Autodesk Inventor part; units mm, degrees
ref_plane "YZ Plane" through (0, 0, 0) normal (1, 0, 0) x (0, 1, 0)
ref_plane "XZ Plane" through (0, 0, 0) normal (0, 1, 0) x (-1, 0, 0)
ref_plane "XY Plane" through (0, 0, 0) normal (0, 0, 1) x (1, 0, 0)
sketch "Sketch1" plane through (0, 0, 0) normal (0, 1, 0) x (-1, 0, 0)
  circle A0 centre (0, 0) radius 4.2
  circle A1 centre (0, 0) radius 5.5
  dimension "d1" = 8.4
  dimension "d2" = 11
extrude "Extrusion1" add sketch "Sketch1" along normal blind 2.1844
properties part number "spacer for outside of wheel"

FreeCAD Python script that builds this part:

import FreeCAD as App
import Part
import Sketcher
from FreeCAD import Vector

doc = App.newDocument("Part")
body = doc.addObject("PartDesign::Body", "Body")

# Sketch on XZ plane
sketch1 = body.newObject("Sketcher::SketchObject", "Sketch")
sketch1.AttachmentSupport = (doc.getObject("XZ_Plane"), [""])
sketch1.MapMode = "FlatFace"
sketch1.addGeometry([
    Part.Circle(Vector(0, 0, 0), Vector(0, 0, 1), 5.5),
    Part.Circle(Vector(0, 0, 0), Vector(0, 0, 1), 4.2),
], False)
sketch1.addConstraint([
    Sketcher.Constraint("Coincident", 0, 3, -1, 1),
    Sketcher.Constraint("Coincident", 1, 3, -1, 1),
    Sketcher.Constraint("Diameter", 0, 11.0),
    Sketcher.Constraint("Diameter", 1, 8.4),
])
pad1 = body.newObject("PartDesign::Pad", "Pad")
pad1.Profile = sketch1
pad1.Length = 2.1844
pad1.Reversed = True

doc.recompute()
